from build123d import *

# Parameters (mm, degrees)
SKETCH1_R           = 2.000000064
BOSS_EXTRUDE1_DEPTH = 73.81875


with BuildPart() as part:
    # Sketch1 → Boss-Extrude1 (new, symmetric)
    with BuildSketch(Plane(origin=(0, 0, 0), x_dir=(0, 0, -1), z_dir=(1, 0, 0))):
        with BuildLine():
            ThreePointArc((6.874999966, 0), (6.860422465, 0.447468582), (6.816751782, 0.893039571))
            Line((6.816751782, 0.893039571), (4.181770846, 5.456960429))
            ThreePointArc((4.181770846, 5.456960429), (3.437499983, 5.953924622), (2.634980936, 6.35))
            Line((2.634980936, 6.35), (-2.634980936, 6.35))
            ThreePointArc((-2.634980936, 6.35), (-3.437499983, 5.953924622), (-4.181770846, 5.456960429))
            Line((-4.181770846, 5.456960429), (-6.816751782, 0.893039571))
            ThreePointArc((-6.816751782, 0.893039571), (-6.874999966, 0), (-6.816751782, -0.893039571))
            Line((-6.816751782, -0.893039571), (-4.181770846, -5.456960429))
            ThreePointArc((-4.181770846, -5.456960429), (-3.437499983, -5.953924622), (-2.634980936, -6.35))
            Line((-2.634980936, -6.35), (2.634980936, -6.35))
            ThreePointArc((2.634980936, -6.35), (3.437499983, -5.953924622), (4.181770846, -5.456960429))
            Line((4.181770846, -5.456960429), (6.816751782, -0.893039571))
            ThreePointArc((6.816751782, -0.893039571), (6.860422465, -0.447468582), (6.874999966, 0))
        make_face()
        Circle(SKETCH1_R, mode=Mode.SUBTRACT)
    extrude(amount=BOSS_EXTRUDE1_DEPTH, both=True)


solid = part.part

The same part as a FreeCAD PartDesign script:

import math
import FreeCAD as App
import Part
import Sketcher

V = App.Vector
Q = App.Units.Quantity

doc = App.newDocument("Part")
body = doc.addObject("PartDesign::Body", "Body")

sketch1 = body.newObject("Sketcher::SketchObject", "Sketch")
sketch1.AttachmentSupport = (doc.getObject("YZ_Plane"), [""])
sketch1.MapMode = "FlatFace"
sketch1.addGeometry([
    Part.ArcOfCircle(Part.Circle(V(0, 0, 0), V(0, 0, 1), 6.9), math.radians(-90), math.radians(-82.54)),
    Part.LineSegment(V(0.9, -6.8, 0), V(5.5, -4.2, 0)),
    Part.ArcOfCircle(Part.Circle(V(0, 0, 0), V(0, 0, 1), 6.9), math.radians(-37.46), math.radians(-22.54)),
    Part.LineSegment(V(6.3, -2.6, 0), V(6.3, 2.6, 0)),
    Part.ArcOfCircle(Part.Circle(V(0, 0, 0), V(0, 0, 1), 6.9), math.radians(22.54), math.radians(37.46)),
    Part.LineSegment(V(5.5, 4.2, 0), V(0.9, 6.8, 0)),
    Part.ArcOfCircle(Part.Circle(V(0, 0, 0), V(0, 0, 1), 6.9), math.radians(82.54), math.radians(97.46)),
    Part.LineSegment(V(-0.9, 6.8, 0), V(-5.5, 4.2, 0)),
    Part.ArcOfCircle(Part.Circle(V(0, 0, 0), V(0, 0, 1), 6.9), math.radians(142.54), math.radians(157.46)),
    Part.LineSegment(V(-6.3, 2.6, 0), V(-6.3, -2.6, 0)),
    Part.ArcOfCircle(Part.Circle(V(0, 0, 0), V(0, 0, 1), 6.9), math.radians(-157.46), math.radians(-142.54)),
    Part.LineSegment(V(-5.5, -4.2, 0), V(-0.9, -6.8, 0)),
    Part.ArcOfCircle(Part.Circle(V(0, 0, 0), V(0, 0, 1), 6.9), math.radians(-97.46), math.radians(-90)),
    Part.Circle(V(0, 0, 0), V(0, 0, 1), 2),
], False)
sketch1.addConstraint([
    Sketcher.Constraint("Coincident", 0, 2, 1, 1),
    Sketcher.Constraint("Coincident", 1, 2, 2, 1),
    Sketcher.Constraint("Coincident", 2, 2, 3, 1),
    Sketcher.Constraint("Coincident", 3, 2, 4, 1),
    Sketcher.Constraint("Coincident", 4, 2, 5, 1),
    Sketcher.Constraint("Coincident", 5, 2, 6, 1),
    Sketcher.Constraint("Coincident", 6, 2, 7, 1),
    Sketcher.Constraint("Coincident", 7, 2, 8, 1),
    Sketcher.Constraint("Coincident", 8, 2, 9, 1),
    Sketcher.Constraint("Coincident", 9, 2, 10, 1),
    Sketcher.Constraint("Coincident", 10, 2, 11, 1),
    Sketcher.Constraint("Coincident", 11, 2, 12, 1),
    Sketcher.Constraint("Tangent", 12, 2, 0, 1),
    Sketcher.Constraint("Vertical", 3),
    Sketcher.Constraint("Vertical", 9),
    Sketcher.Constraint("Coincident", 0, 3, -1, 1),
    Sketcher.Constraint("Coincident", 2, 3, -1, 1),
    Sketcher.Constraint("Coincident", 4, 3, -1, 1),
    Sketcher.Constraint("Coincident", 6, 3, -1, 1),
    Sketcher.Constraint("Coincident", 8, 3, -1, 1),
    Sketcher.Constraint("Coincident", 10, 3, -1, 1),
    Sketcher.Constraint("Coincident", 13, 3, -1, 1),
    Sketcher.Constraint("Equal", 0, 2),
    Sketcher.Constraint("Equal", 2, 4),
    Sketcher.Constraint("Equal", 4, 6),
    Sketcher.Constraint("Equal", 6, 8),
    Sketcher.Constraint("Equal", 8, 10),
    Sketcher.Constraint("Equal", 10, 12),
    Sketcher.Constraint("PointOnObject", 12, 2, -2),
    Sketcher.Constraint("Parallel", 1, 7),
    Sketcher.Constraint("Parallel", 5, 11),
    Sketcher.Constraint("Horizontal", 5, 2, 6, 2),
    Sketcher.Constraint("Horizontal", 4, 2, 7, 2),
    Sketcher.Constraint("Horizontal", 3, 2, 8, 2),
    Sketcher.Constraint("Horizontal", 1, 2, 10, 2),
    Sketcher.Constraint("Vertical", 1, 2, 4, 2),
    Sketcher.Constraint("Diameter", 13, Q("4 mm")),
    Sketcher.Constraint("Angle", 1, Q("30 deg")),
    Sketcher.Constraint("Radius", 0, Q("6.875 mm")),
    Sketcher.Constraint("DistanceX", -1, 1, 2, 2, Q("6.35 mm")),
    Sketcher.Constraint("Distance", 1, Q("5.269962 mm")),
])
pad1 = body.newObject("PartDesign::Pad", "Pad")
pad1.Profile = sketch1
pad1.Length = 147.6375
pad1.Midplane = True

doc.recompute()
